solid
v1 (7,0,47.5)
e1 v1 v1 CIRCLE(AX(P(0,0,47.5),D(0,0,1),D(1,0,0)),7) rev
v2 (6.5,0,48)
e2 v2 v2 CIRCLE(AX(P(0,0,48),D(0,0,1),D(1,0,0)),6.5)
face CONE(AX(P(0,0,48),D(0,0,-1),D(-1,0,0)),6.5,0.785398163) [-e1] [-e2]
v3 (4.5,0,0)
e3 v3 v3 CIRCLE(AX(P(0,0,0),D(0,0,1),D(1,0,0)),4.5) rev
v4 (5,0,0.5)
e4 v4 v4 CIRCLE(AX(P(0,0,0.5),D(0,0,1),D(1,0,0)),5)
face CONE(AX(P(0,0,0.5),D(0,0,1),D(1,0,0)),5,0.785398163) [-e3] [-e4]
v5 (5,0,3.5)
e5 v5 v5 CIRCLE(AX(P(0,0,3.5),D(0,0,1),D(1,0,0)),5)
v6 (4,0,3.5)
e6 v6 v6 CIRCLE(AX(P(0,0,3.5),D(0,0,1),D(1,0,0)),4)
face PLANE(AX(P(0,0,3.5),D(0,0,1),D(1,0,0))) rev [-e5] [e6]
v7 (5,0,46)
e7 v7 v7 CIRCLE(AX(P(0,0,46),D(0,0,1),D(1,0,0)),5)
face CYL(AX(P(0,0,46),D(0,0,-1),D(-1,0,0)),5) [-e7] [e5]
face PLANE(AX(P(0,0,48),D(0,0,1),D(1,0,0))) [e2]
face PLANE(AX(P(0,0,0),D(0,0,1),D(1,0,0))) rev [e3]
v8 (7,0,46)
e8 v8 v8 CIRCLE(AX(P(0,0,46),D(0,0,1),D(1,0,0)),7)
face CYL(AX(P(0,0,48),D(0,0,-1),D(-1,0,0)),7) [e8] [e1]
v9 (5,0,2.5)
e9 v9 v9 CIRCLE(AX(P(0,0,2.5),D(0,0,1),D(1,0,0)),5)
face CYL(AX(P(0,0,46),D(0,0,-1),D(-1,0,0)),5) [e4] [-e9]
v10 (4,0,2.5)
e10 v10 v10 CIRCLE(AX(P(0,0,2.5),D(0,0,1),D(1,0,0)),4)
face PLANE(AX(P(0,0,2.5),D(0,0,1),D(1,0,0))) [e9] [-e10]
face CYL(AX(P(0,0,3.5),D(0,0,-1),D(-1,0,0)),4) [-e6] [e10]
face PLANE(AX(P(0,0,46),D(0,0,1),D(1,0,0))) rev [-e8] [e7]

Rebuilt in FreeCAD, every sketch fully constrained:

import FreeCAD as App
import Part
import Sketcher
from FreeCAD import Vector
Q = App.Units.Quantity


def edges_at(feature, points):
    """Names of the edges that pass closest to the given points."""
    edges = feature.Shape.Edges
    near = lambda p: min(range(len(edges)), key=lambda i: edges[i].distToShape(Part.Vertex(*p))[0])
    return sorted({f"Edge{near(p) + 1}" for p in points})

doc = App.newDocument("Part")
body = doc.addObject("PartDesign::Body", "Body")

# Sketch on XY plane
sketch1 = body.newObject("Sketcher::SketchObject", "Sketch")
sketch1.AttachmentSupport = (doc.getObject("XY_Plane"), [""])
sketch1.MapMode = "FlatFace"
sketch1.addGeometry(Part.Circle(Vector(0, 0, 0), Vector(0, 0, 1), 5), False)
sketch1.addConstraint([
    Sketcher.Constraint("Coincident", 0, 3, -1, 1),
    Sketcher.Constraint("Diameter", 0, Q("10 mm")),
])
pad1 = body.newObject("PartDesign::Pad", "Pad")
pad1.Profile = sketch1
pad1.Length = 46

# Sketch on XY plane
sketch2 = body.newObject("Sketcher::SketchObject", "Sketch001")
sketch2.AttachmentSupport = (doc.getObject("XY_Plane"), [""])
sketch2.MapMode = "FlatFace"
sketch2.AttachmentOffset = App.Placement(Vector(0, 0, 46), App.Rotation())
sketch2.addGeometry(Part.Circle(Vector(0, 0, 0), Vector(0, 0, 1), 7), False)
sketch2.addConstraint([
    Sketcher.Constraint("Coincident", 0, 3, -1, 1),
    Sketcher.Constraint("Diameter", 0, Q("14 mm")),
])
pad2 = body.newObject("PartDesign::Pad", "Pad001")
pad2.Profile = sketch2
pad2.Length = 2
doc.recompute()

chamfer = body.newObject("PartDesign::Chamfer", "Chamfer")
chamfer.Base = (pad2, edges_at(pad2, [(-5, 0, 0), (-7, 0, 48)]))
chamfer.Size = 0.5

# Sketch on XY plane
sketch3 = body.newObject("Sketcher::SketchObject", "Sketch002")
sketch3.AttachmentSupport = (doc.getObject("XY_Plane"), [""])
sketch3.MapMode = "FlatFace"
sketch3.AttachmentOffset = App.Placement(Vector(0, 0, 2.5), App.Rotation())
sketch3.addGeometry([
    Part.Circle(Vector(0, 0, 0), Vector(0, 0, 1), 14),
    Part.Circle(Vector(0, 0, 0), Vector(0, 0, 1), 4),
], False)
sketch3.addConstraint([
    Sketcher.Constraint("Coincident", 0, 3, -1, 1),
    Sketcher.Constraint("Coincident", 1, 3, -1, 1),
    Sketcher.Constraint("Diameter", 0, Q("28 mm")),
    Sketcher.Constraint("Diameter", 1, Q("8 mm")),
])
pocket1 = body.newObject("PartDesign::Pocket", "Pocket")
pocket1.Profile = sketch3
pocket1.Length = 1
pocket1.Reversed = True

doc.recompute()
